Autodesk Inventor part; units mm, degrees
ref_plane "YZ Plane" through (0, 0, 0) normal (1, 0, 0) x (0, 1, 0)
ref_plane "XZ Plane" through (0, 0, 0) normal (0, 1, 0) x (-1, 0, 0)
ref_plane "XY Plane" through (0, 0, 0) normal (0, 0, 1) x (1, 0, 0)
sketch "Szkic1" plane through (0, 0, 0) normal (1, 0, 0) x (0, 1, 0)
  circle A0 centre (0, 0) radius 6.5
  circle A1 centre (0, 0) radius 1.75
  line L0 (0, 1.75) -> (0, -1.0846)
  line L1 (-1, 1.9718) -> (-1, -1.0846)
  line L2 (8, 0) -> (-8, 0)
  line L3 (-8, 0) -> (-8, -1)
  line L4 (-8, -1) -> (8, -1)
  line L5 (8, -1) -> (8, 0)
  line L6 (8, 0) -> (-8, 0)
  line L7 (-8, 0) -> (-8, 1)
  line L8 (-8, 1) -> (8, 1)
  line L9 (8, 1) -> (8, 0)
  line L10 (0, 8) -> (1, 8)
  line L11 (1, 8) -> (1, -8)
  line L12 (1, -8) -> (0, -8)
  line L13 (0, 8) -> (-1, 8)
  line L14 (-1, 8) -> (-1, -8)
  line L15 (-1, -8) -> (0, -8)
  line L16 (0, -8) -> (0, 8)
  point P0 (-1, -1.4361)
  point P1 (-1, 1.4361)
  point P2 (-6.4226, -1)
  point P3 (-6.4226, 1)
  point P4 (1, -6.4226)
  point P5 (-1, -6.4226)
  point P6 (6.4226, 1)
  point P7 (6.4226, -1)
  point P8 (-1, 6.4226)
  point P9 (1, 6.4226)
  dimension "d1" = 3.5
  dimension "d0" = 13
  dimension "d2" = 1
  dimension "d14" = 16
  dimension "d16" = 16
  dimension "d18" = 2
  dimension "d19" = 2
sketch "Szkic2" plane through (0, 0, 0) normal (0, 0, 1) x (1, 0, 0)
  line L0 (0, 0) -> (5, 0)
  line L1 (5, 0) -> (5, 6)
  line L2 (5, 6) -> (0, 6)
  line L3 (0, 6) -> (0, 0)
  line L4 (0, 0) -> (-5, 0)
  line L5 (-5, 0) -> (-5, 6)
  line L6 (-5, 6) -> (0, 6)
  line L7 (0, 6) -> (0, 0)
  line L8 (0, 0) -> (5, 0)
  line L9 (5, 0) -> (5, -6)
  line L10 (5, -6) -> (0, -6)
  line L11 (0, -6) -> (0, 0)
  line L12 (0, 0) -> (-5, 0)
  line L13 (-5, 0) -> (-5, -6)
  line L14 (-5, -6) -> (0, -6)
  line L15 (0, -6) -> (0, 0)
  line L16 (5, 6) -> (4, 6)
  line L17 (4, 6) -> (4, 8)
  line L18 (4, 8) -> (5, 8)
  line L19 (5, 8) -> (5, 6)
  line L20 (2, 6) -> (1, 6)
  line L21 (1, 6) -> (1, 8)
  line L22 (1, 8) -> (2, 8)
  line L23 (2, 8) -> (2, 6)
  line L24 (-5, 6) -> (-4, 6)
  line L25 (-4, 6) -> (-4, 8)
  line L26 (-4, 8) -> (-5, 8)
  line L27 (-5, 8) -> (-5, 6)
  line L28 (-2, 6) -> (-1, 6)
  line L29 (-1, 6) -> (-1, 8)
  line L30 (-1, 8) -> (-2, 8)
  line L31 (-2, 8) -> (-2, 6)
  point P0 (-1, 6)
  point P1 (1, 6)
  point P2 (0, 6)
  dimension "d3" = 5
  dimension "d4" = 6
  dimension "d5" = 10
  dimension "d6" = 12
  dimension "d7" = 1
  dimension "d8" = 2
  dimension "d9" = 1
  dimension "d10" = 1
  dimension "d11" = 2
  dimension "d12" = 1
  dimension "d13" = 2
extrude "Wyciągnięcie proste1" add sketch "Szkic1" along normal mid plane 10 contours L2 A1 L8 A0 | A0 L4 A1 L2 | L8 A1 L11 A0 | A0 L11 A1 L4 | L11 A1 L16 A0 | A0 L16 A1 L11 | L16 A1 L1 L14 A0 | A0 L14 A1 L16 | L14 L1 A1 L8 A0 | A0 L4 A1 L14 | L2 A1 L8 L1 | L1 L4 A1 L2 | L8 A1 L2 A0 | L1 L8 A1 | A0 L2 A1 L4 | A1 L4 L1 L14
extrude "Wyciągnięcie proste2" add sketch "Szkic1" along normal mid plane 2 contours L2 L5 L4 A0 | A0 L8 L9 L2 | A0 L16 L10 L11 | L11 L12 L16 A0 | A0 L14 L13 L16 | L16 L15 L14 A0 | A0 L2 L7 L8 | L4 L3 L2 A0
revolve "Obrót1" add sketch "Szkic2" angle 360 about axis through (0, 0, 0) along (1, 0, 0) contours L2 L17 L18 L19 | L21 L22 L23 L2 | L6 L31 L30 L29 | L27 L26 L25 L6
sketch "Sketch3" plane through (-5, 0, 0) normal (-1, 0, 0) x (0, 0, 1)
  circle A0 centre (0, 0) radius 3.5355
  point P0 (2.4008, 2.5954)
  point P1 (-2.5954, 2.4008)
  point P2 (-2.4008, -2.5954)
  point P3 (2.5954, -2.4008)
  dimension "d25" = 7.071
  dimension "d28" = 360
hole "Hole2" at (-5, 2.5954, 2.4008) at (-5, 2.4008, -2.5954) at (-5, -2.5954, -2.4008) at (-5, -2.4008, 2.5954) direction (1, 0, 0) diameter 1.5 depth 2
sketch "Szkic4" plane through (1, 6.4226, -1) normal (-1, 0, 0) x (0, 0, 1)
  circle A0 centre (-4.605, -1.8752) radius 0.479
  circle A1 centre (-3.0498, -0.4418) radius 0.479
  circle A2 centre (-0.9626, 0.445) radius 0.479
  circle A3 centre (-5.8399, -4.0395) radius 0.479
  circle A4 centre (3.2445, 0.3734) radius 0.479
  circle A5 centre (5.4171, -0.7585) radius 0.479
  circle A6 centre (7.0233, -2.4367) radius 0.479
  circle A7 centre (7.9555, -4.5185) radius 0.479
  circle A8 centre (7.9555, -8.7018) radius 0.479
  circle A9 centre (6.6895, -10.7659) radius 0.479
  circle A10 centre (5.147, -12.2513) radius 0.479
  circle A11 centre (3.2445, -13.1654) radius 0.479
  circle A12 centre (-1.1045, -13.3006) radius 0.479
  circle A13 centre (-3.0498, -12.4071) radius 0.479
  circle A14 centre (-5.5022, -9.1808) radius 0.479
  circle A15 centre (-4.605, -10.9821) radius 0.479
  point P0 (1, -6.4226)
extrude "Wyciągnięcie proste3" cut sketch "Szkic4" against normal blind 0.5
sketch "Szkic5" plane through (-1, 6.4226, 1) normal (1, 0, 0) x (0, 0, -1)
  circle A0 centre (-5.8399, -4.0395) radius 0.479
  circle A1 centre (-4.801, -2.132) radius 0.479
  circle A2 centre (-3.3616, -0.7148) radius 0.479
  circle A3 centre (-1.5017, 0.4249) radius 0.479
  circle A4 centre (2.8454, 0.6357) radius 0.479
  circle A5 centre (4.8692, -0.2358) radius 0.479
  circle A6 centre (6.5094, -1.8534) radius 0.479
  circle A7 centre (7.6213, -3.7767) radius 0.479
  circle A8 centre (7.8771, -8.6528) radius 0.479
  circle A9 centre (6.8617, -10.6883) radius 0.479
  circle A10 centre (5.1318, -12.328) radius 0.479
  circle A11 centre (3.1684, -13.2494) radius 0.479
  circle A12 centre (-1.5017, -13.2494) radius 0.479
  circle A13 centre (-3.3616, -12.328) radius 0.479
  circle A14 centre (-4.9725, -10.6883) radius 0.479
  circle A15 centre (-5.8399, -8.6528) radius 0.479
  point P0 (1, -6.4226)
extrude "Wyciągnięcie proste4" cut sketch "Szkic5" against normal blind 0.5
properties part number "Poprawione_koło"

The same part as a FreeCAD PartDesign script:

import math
import FreeCAD as App
import Part
import Sketcher
Q = App.Units.Quantity


def add_polygon(sketch, points):
    """Adds a closed chain of lines whose ends are joined by coincident constraints."""
    first, n = sketch.GeometryCount, len(points)
    for a, b in zip(points, points[1:] + points[:1]):
        sketch.addGeometry(Part.LineSegment(App.Vector(*a, 0), App.Vector(*b, 0)), False)
    for i in range(n):
        sketch.addConstraint(Sketcher.Constraint("Coincident", first + i, 2, first + (i + 1) % n, 1))

doc = App.newDocument("Part")
params = doc.addObject("Spreadsheet::Sheet", "Params")
for row, (alias, value) in enumerate([
    ("sketch1_diameter", "13 mm"),
    ("sketch1_radius", "1.75 mm"),
    ("pad1_length", "10 mm"),
    ("sketch2_radius", "6.5 mm"),
    ("sketch2_width", "2 mm"),
    ("pad2_length", "2 mm"),
    ("sketch3_width", "1 mm"),
    ("sketch3_height", "2 mm"),
    ("revolution_angle", "360 deg"),
    ("sketch4_diameter", "1.5 mm"),
    ("hole_diameter", "1.5 mm"),
    ("hole_depth", "2 mm"),
    ("pocket1_length", "0.5 mm"),
    ("pocket2_length", "0.5 mm"),
], start=1):
    params.set(f"A{row}", alias)
    params.set(f"B{row}", "=" + value)
    params.setAlias(f"B{row}", alias)

body = doc.addObject("PartDesign::Body", "Body")

sketch1 = body.newObject("Sketcher::SketchObject", "Sketch")
sketch1.AttachmentSupport = (doc.getObject("YZ_Plane"), [""])
sketch1.MapMode = "FlatFace"
sketch1.addGeometry([
    Part.Circle(App.Vector(0, 0, 0), App.Vector(0, 0, 1), 6.5),
    Part.LineSegment(App.Vector(-1, -1.4, 0), App.Vector(-1, 1.4, 0)),
    Part.ArcOfCircle(Part.Circle(App.Vector(0, 0, 0), App.Vector(0, 0, 1), 1.8), math.radians(-125), math.radians(125)),
], False)
sketch1.addConstraint([
    Sketcher.Constraint("Coincident", 1, 1, 2, 1),
    Sketcher.Constraint("Coincident", 2, 2, 1, 2),
    Sketcher.Constraint("Vertical", 1),
    Sketcher.Constraint("Coincident", 0, 3, -1, 1),
    Sketcher.Constraint("Coincident", 2, 3, -1, 1),
    Sketcher.Constraint("Diameter", 0, Q("13 mm")),
    Sketcher.Constraint("Radius", 2, Q("1.75 mm")),
    Sketcher.Constraint("DistanceX", 1, 1, -1, 1, Q("1 mm")),
])
sketch1.setExpression("Constraints[5]", "Params.sketch1_diameter")
sketch1.setExpression("Constraints[6]", "Params.sketch1_radius")
pad1 = body.newObject("PartDesign::Pad", "Pad")
pad1.Profile = sketch1
pad1.setExpression("Length", "Params.pad1_length")
pad1.Midplane = True

sketch2 = body.newObject("Sketcher::SketchObject", "Sketch001")
sketch2.AttachmentSupport = (doc.getObject("YZ_Plane"), [""])
sketch2.MapMode = "FlatFace"
sketch2.addGeometry([
    Part.LineSegment(App.Vector(8, -1, 0), App.Vector(8, 1, 0)),
    Part.LineSegment(App.Vector(8, 1, 0), App.Vector(6.4, 1, 0)),
    Part.ArcOfCircle(Part.Circle(App.Vector(0, 0, 0), App.Vector(0, 0, 1), 6.5), math.radians(-8.85), math.radians(8.85)),
    Part.LineSegment(App.Vector(6.4, -1, 0), App.Vector(8, -1, 0)),
    Part.LineSegment(App.Vector(1, 6.4, 0), App.Vector(1, 8, 0)),
    Part.LineSegment(App.Vector(1, 8, 0), App.Vector(-1, 8, 0)),
    Part.LineSegment(App.Vector(-1, 8, 0), App.Vector(-1, 6.4, 0)),
    Part.ArcOfCircle(Part.Circle(App.Vector(0, 0, 0), App.Vector(0, 0, 1), 6.5), math.radians(81.15), math.radians(98.85)),
    Part.LineSegment(App.Vector(1, -8, 0), App.Vector(1, -6.4, 0)),
    Part.ArcOfCircle(Part.Circle(App.Vector(0, 0, 0), App.Vector(0, 0, 1), 6.5), math.radians(-98.85), math.radians(-81.15)),
    Part.LineSegment(App.Vector(-1, -6.4, 0), App.Vector(-1, -8, 0)),
    Part.LineSegment(App.Vector(-1, -8, 0), App.Vector(1, -8, 0)),
    Part.LineSegment(App.Vector(-6.4, 1, 0), App.Vector(-8, 1, 0)),
    Part.LineSegment(App.Vector(-8, 1, 0), App.Vector(-8, -1, 0)),
    Part.LineSegment(App.Vector(-8, -1, 0), App.Vector(-6.4, -1, 0)),
    Part.ArcOfCircle(Part.Circle(App.Vector(0, 0, 0), App.Vector(0, 0, 1), 6.5), math.radians(171.15), math.radians(188.85)),
], False)
sketch2.addConstraint([
    Sketcher.Constraint("Coincident", 0, 2, 1, 1),
    Sketcher.Constraint("Coincident", 1, 2, 2, 2),
    Sketcher.Constraint("Coincident", 2, 1, 3, 1),
    Sketcher.Constraint("Coincident", 3, 2, 0, 1),
    Sketcher.Constraint("Coincident", 4, 2, 5, 1),
    Sketcher.Constraint("Coincident", 5, 2, 6, 1),
    Sketcher.Constraint("Coincident", 6, 2, 7, 2),
    Sketcher.Constraint("Coincident", 7, 1, 4, 1),
    Sketcher.Constraint("Coincident", 8, 2, 9, 2),
    Sketcher.Constraint("Coincident", 9, 1, 10, 1),
    Sketcher.Constraint("Coincident", 10, 2, 11, 1),
    Sketcher.Constraint("Coincident", 11, 2, 8, 1),
    Sketcher.Constraint("Coincident", 12, 2, 13, 1),
    Sketcher.Constraint("Coincident", 13, 2, 14, 1),
    Sketcher.Constraint("Coincident", 14, 2, 15, 2),
    Sketcher.Constraint("Coincident", 15, 1, 12, 1),
    Sketcher.Constraint("Vertical", 0),
    Sketcher.Constraint("Horizontal", 1),
    Sketcher.Constraint("Horizontal", 3),
    Sketcher.Constraint("Vertical", 4),
    Sketcher.Constraint("Horizontal", 5),
    Sketcher.Constraint("Vertical", 6),
    Sketcher.Constraint("Vertical", 8),
    Sketcher.Constraint("Vertical", 10),
    Sketcher.Constraint("Horizontal", 11),
    Sketcher.Constraint("Horizontal", 12),
    Sketcher.Constraint("Vertical", 13),
    Sketcher.Constraint("Horizontal", 14),
    Sketcher.Constraint("Coincident", 2, 3, -1, 1),
    Sketcher.Constraint("Coincident", 7, 3, -1, 1),
    Sketcher.Constraint("Coincident", 9, 3, -1, 1),
    Sketcher.Constraint("Coincident", 15, 3, -1, 1),
    Sketcher.Constraint("Equal", 2, 7),
    Sketcher.Constraint("Equal", 7, 9),
    Sketcher.Constraint("Equal", 9, 15),
    Sketcher.Constraint("Symmetric", 4, 2, 10, 2, -1, 1),
    Sketcher.Constraint("Symmetric", 3, 2, 12, 2, -1, 1),
    Sketcher.Constraint("Horizontal", 6, 2, 7, 1),
    Sketcher.Constraint("Horizontal", 8, 2, 9, 1),
    Sketcher.Constraint("Horizontal", 1, 2, 12, 2),
    Sketcher.Constraint("Horizontal", 3, 2, 13, 2),
    Sketcher.Constraint("Equal", 11, 0),
    Sketcher.Constraint("Equal", 14, 4),
    Sketcher.Constraint("Radius", 2, Q("6.5 mm")),
    Sketcher.Constraint("DistanceX", 5, 2, 5, 1, Q("2 mm")),
    Sketcher.Constraint("DistanceX", -1, 1, 0, 2, Q("8 mm")),
])
sketch2.setExpression("Constraints[43]", "Params.sketch2_radius")
sketch2.setExpression("Constraints[44]", "Params.sketch2_width")
pad2 = body.newObject("PartDesign::Pad", "Pad001")
pad2.Profile = sketch2
pad2.setExpression("Length", "Params.pad2_length")
pad2.Midplane = True

sketch3 = body.newObject("Sketcher::SketchObject", "Sketch002")
sketch3.AttachmentSupport = (doc.getObject("XY_Plane"), [""])
sketch3.MapMode = "FlatFace"
add_polygon(sketch3, [(4, 6), (5, 6), (5, 8), (4, 8)])
add_polygon(sketch3, [(1, 8), (1, 6), (2, 6), (2, 8)])
add_polygon(sketch3, [(-2, 6), (-1, 6), (-1, 8), (-2, 8)])
add_polygon(sketch3, [(-5, 8), (-5, 6), (-4, 6), (-4, 8)])
sketch3.addConstraint([
    Sketcher.Constraint("Horizontal", 0),
    Sketcher.Constraint("Vertical", 1),
    Sketcher.Constraint("Horizontal", 2),
    Sketcher.Constraint("Vertical", 3),
    Sketcher.Constraint("Vertical", 4),
    Sketcher.Constraint("Horizontal", 5),
    Sketcher.Constraint("Vertical", 6),
    Sketcher.Constraint("Horizontal", 7),
    Sketcher.Constraint("Horizontal", 8),
    Sketcher.Constraint("Vertical", 9),
    Sketcher.Constraint("Horizontal", 10),
    Sketcher.Constraint("Vertical", 11),
    Sketcher.Constraint("Vertical", 12),
    Sketcher.Constraint("Horizontal", 13),
    Sketcher.Constraint("Vertical", 14),
    Sketcher.Constraint("Horizontal", 15),
    Sketcher.Constraint("Symmetric", 4, 2, 8, 2, -2),
    Sketcher.Constraint("Symmetric", 6, 2, 10, 2, -2),
    Sketcher.Constraint("Symmetric", 0, 2, 12, 2, -2),
    Sketcher.Constraint("Symmetric", 2, 2, 14, 2, -2),
    Sketcher.Constraint("Horizontal", 3, 2, 4, 2),
    Sketcher.Constraint("Horizontal", 2, 2, 6, 2),
    Sketcher.Constraint("Equal", 2, 5),
    Sketcher.Constraint("DistanceX", 0, 1, 0, 2, Q("1 mm")),
    Sketcher.Constraint("DistanceY", 1, 1, 1, 2, Q("2 mm")),
    Sketcher.Constraint("DistanceX", -1, 1, 0, 2, Q("5 mm")),
    Sketcher.Constraint("DistanceY", -1, 1, 0, 2, Q("6 mm")),
    Sketcher.Constraint("DistanceX", -1, 1, 4, 2, Q("1 mm")),
])
sketch3.setExpression("Constraints[39]", "Params.sketch3_width")
sketch3.setExpression("Constraints[40]", "Params.sketch3_height")
revolution = body.newObject("PartDesign::Revolution", "Revolution")
revolution.Profile = sketch3
revolution.ReferenceAxis = (sketch3, ["H_Axis"])
revolution.setExpression("Angle", "Params.revolution_angle")

sketch4 = body.newObject("Sketcher::SketchObject", "Sketch003")
sketch4.AttachmentSupport = (doc.getObject("YZ_Plane"), [""])
sketch4.MapMode = "FlatFace"
sketch4.AttachmentOffset = App.Placement(App.Vector(0, 0, -5), App.Rotation())
sketch4.addGeometry([
    Part.Circle(App.Vector(2.6, 2.4, 0), App.Vector(0, 0, 1), 0.8),
    Part.Circle(App.Vector(2.4, -2.6, 0), App.Vector(0, 0, 1), 0.8),
    Part.Circle(App.Vector(-2.6, -2.4, 0), App.Vector(0, 0, 1), 0.8),
    Part.Circle(App.Vector(-2.4, 2.6, 0), App.Vector(0, 0, 1), 0.8),
], False)
sketch4.addConstraint([
    Sketcher.Constraint("Equal", 0, 1),
    Sketcher.Constraint("Equal", 1, 2),
    Sketcher.Constraint("Equal", 2, 3),
    Sketcher.Constraint("Symmetric", 0, 3, 2, 3, -1, 1),
    Sketcher.Constraint("Symmetric", 1, 3, 3, 3, -1, 1),
    Sketcher.Constraint("Diameter", 0, Q("1.5 mm")),
    Sketcher.Constraint("DistanceX", -1, 1, 0, 3, Q("2.5954 mm")),
    Sketcher.Constraint("DistanceY", -1, 1, 0, 3, Q("2.4008 mm")),
    Sketcher.Constraint("DistanceX", -1, 1, 1, 3, Q("2.4008 mm")),
    Sketcher.Constraint("DistanceY", 1, 3, -1, 1, Q("2.5954 mm")),
])
sketch4.setExpression("Constraints[5]", "Params.sketch4_diameter")
doc.recompute()
hole = body.newObject("PartDesign::Hole", "Hole")
hole.Profile = sketch4
hole.ThreadType = "None"
hole.setExpression("Diameter", "Params.hole_diameter")
hole.DepthType = "Dimension"
hole.setExpression("Depth", "Params.hole_depth")
hole.DrillPoint = "Flat"
hole.Reversed = True

sketch5 = body.newObject("Sketcher::SketchObject", "Sketch004")
sketch5.AttachmentSupport = (doc.getObject("YZ_Plane"), [""])
sketch5.MapMode = "FlatFace"
sketch5.AttachmentOffset = App.Placement(App.Vector(0, 0, 1), App.Rotation())
sketch5.addGeometry([
    Part.Circle(App.Vector(4.55, -5.61, 0), App.Vector(0, 0, 1), 0.48),
    Part.Circle(App.Vector(5.98, -4.05, 0), App.Vector(0, 0, 1), 0.48),
    Part.Circle(App.Vector(6.87, -1.96, 0), App.Vector(0, 0, 1), 0.48),
    Part.Circle(App.Vector(2.38, -6.84, 0), App.Vector(0, 0, 1), 0.48),
    Part.Circle(App.Vector(6.8, 2.24, 0), App.Vector(0, 0, 1), 0.48),
    Part.Circle(App.Vector(5.66, 4.42, 0), App.Vector(0, 0, 1), 0.48),
    Part.Circle(App.Vector(3.99, 6.02, 0), App.Vector(0, 0, 1), 0.48),
    Part.Circle(App.Vector(1.9, 6.96, 0), App.Vector(0, 0, 1), 0.48),
    Part.Circle(App.Vector(-2.28, 6.96, 0), App.Vector(0, 0, 1), 0.48),
    Part.Circle(App.Vector(-4.34, 5.69, 0), App.Vector(0, 0, 1), 0.48),
    Part.Circle(App.Vector(-5.83, 4.15, 0), App.Vector(0, 0, 1), 0.48),
    Part.Circle(App.Vector(-6.74, 2.24, 0), App.Vector(0, 0, 1), 0.48),
    Part.Circle(App.Vector(-6.88, -2.1, 0), App.Vector(0, 0, 1), 0.48),
    Part.Circle(App.Vector(-5.98, -4.05, 0), App.Vector(0, 0, 1), 0.48),
    Part.Circle(App.Vector(-2.76, -6.5, 0), App.Vector(0, 0, 1), 0.48),
    Part.Circle(App.Vector(-4.56, -5.61, 0), App.Vector(0, 0, 1), 0.48),
], False)
sketch5.addConstraint([
    Sketcher.Constraint("Equal", 0, 1),
    Sketcher.Constraint("Equal", 1, 2),
    Sketcher.Constraint("Equal", 2, 3),
    Sketcher.Constraint("Equal", 3, 4),
    Sketcher.Constraint("Equal", 4, 5),
    Sketcher.Constraint("Equal", 5, 6),
    Sketcher.Constraint("Equal", 6, 7),
    Sketcher.Constraint("Equal", 7, 8),
    Sketcher.Constraint("Equal", 8, 9),
    Sketcher.Constraint("Equal", 9, 10),
    Sketcher.Constraint("Equal", 10, 11),
    Sketcher.Constraint("Equal", 11, 12),
    Sketcher.Constraint("Equal", 12, 13),
    Sketcher.Constraint("Equal", 13, 14),
    Sketcher.Constraint("Equal", 14, 15),
    Sketcher.Constraint("Horizontal", 7, 3, 8, 3),
    Sketcher.Constraint("Horizontal", 4, 3, 11, 3),
    Sketcher.Constraint("Horizontal", 1, 3, 13, 3),
    Sketcher.Constraint("Horizontal", 0, 3, 15, 3),
    Sketcher.Constraint("Diameter", 0, Q("0.958 mm")),
    Sketcher.Constraint("DistanceY", 3, 3, -1, 1, Q("6.84 mm")),
    Sketcher.Constraint("DistanceY", 3, 3, 1, 3, Q("2.79 mm")),
    Sketcher.Constraint("DistanceX", 6, 3, 4, 3, Q("2.81 mm")),
    Sketcher.Constraint("DistanceX", 7, 3, 5, 3, Q("3.76 mm")),
    Sketcher.Constraint("DistanceY", 10, 3, 5, 3, Q("0.27 mm")),
    Sketcher.Constraint("DistanceY", 12, 3, 8, 3, Q("9.06 mm")),
    Sketcher.Constraint("DistanceY", 0, 3, -1, 1, Q("5.605 mm")),
    Sketcher.Constraint("DistanceX", -1, 1, 3, 3, Q("2.383 mm")),
    Sketcher.Constraint("DistanceX", -1, 1, 4, 3, Q("6.796 mm")),
    Sketcher.Constraint("DistanceX", -1, 1, 5, 3, Q("5.664 mm")),
    Sketcher.Constraint("DistanceY", -1, 1, 5, 3, Q("4.417 mm")),
    Sketcher.Constraint("DistanceX", 12, 3, -1, 1, Q("6.878 mm")),
    Sketcher.Constraint("DistanceY", 2, 3, 4, 3, Q("4.207 mm")),
    Sketcher.Constraint("DistanceY", 2, 3, 6, 3, Q("7.986 mm")),
    Sketcher.Constraint("DistanceX", 6, 3, 1, 3, Q("1.995 mm")),
    Sketcher.Constraint("DistanceY", 1, 3, 6, 3, Q("10.073 mm")),
    Sketcher.Constraint("DistanceY", 4, 3, 7, 3, Q("4.711 mm")),
    Sketcher.Constraint("DistanceX", 8, 3, 6, 3, Q("6.265 mm")),
    Sketcher.Constraint("DistanceX", 9, 3, 8, 3, Q("2.064 mm")),
    Sketcher.Constraint("DistanceY", 9, 3, 8, 3, Q("1.266 mm")),
    Sketcher.Constraint("DistanceX", 11, 3, 10, 3, Q("0.914 mm")),
    Sketcher.Constraint("DistanceX", 11, 3, 7, 3, Q("8.647 mm")),
    Sketcher.Constraint("DistanceX", 14, 3, 1, 3, Q("8.739 mm")),
    Sketcher.Constraint("DistanceX", 13, 3, 15, 3, Q("1.425 mm")),
    Sketcher.Constraint("DistanceX", -1, 1, 0, 3, Q("4.5474 mm")),
    Sketcher.Constraint("DistanceX", -1, 1, 2, 3, Q("6.8676 mm")),
    Sketcher.Constraint("DistanceX", 13, 3, -1, 1, Q("5.9845 mm")),
    Sketcher.Constraint("DistanceY", 14, 3, -1, 1, Q("6.5022 mm")),
])
pocket1 = body.newObject("PartDesign::Pocket", "Pocket")
pocket1.Profile = sketch5
pocket1.setExpression("Length", "Params.pocket1_length")
pocket1.Reversed = True

sketch6 = body.newObject("Sketcher::SketchObject", "Sketch005")
sketch6.AttachmentSupport = (doc.getObject("YZ_Plane"), [""])
sketch6.MapMode = "FlatFace"
sketch6.AttachmentOffset = App.Placement(App.Vector(0, 0, -1), App.Rotation())
sketch6.addGeometry([
    Part.Circle(App.Vector(2.38, 6.84, 0), App.Vector(0, 0, 1), 0.48),
    Part.Circle(App.Vector(4.29, 5.8, 0), App.Vector(0, 0, 1), 0.48),
    Part.Circle(App.Vector(5.71, 4.36, 0), App.Vector(0, 0, 1), 0.48),
    Part.Circle(App.Vector(6.85, 2.5, 0), App.Vector(0, 0, 1), 0.48),
    Part.Circle(App.Vector(7.06, -1.85, 0), App.Vector(0, 0, 1), 0.48),
    Part.Circle(App.Vector(6.19, -3.87, 0), App.Vector(0, 0, 1), 0.48),
    Part.Circle(App.Vector(4.57, -5.51, 0), App.Vector(0, 0, 1), 0.48),
    Part.Circle(App.Vector(2.65, -6.62, 0), App.Vector(0, 0, 1), 0.48),
    Part.Circle(App.Vector(-2.23, -6.88, 0), App.Vector(0, 0, 1), 0.48),
    Part.Circle(App.Vector(-4.27, -5.86, 0), App.Vector(0, 0, 1), 0.48),
    Part.Circle(App.Vector(-5.91, -4.13, 0), App.Vector(0, 0, 1), 0.48),
    Part.Circle(App.Vector(-6.83, -2.17, 0), App.Vector(0, 0, 1), 0.48),
    Part.Circle(App.Vector(-6.83, 2.5, 0), App.Vector(0, 0, 1), 0.48),
    Part.Circle(App.Vector(-5.91, 4.36, 0), App.Vector(0, 0, 1), 0.48),
    Part.Circle(App.Vector(-4.27, 5.97, 0), App.Vector(0, 0, 1), 0.48),
    Part.Circle(App.Vector(-2.23, 6.84, 0), App.Vector(0, 0, 1), 0.48),
], False)
sketch6.addConstraint([
    Sketcher.Constraint("Equal", 0, 1),
    Sketcher.Constraint("Equal", 1, 2),
    Sketcher.Constraint("Equal", 2, 3),
    Sketcher.Constraint("Equal", 3, 4),
    Sketcher.Constraint("Equal", 4, 5),
    Sketcher.Constraint("Equal", 5, 6),
    Sketcher.Constraint("Equal", 6, 7),
    Sketcher.Constraint("Equal", 7, 8),
    Sketcher.Constraint("Equal", 8, 9),
    Sketcher.Constraint("Equal", 9, 10),
    Sketcher.Constraint("Equal", 10, 11),
    Sketcher.Constraint("Equal", 11, 12),
    Sketcher.Constraint("Equal", 12, 13),
    Sketcher.Constraint("Equal", 13, 14),
    Sketcher.Constraint("Equal", 14, 15),
    Sketcher.Constraint("Horizontal", 3, 3, 12, 3),
    Sketcher.Constraint("Horizontal", 2, 3, 13, 3),
    Sketcher.Constraint("Horizontal", 0, 3, 15, 3),
    Sketcher.Constraint("Vertical", 11, 3, 12, 3),
    Sketcher.Constraint("Vertical", 10, 3, 13, 3),
    Sketcher.Constraint("Vertical", 9, 3, 14, 3),
    Sketcher.Constraint("Vertical", 8, 3, 15, 3),
    Sketcher.Constraint("Diameter", 0, Q("0.958 mm")),
    Sketcher.Constraint("DistanceY", -1, 1, 0, 3, Q("6.84 mm")),
    Sketcher.Constraint("DistanceY", 3, 3, 2, 3, Q("1.86 mm")),
    Sketcher.Constraint("DistanceY", 9, 3, 10, 3, Q("1.73 mm")),
    Sketcher.Constraint("DistanceY", 11, 3, 12, 3, Q("4.67 mm")),
    Sketcher.Constraint("DistanceX", 12, 3, 0, 3, Q("9.21 mm")),
    Sketcher.Constraint("DistanceX", -1, 1, 0, 3, Q("2.383 mm")),
    Sketcher.Constraint("DistanceY", -1, 1, 1, 3, Q("5.801 mm")),
    Sketcher.Constraint("DistanceX", -1, 1, 7, 3, Q("2.646 mm")),
    Sketcher.Constraint("DistanceY", 8, 3, -1, 1, Q("6.877 mm")),
    Sketcher.Constraint("DistanceX", 1, 3, 3, 3, Q("2.557 mm")),
    Sketcher.Constraint("DistanceY", 4, 3, 3, 3, Q("4.347 mm")),
    Sketcher.Constraint("DistanceY", 5, 3, 3, 3, Q("6.371 mm")),
    Sketcher.Constraint("DistanceX", 2, 3, 5, 3, Q("0.479 mm")),
    Sketcher.Constraint("DistanceY", 5, 3, 0, 3, Q("10.709 mm")),
    Sketcher.Constraint("DistanceX", 6, 3, 4, 3, Q("2.489 mm")),
    Sketcher.Constraint("DistanceY", 6, 3, 4, 3, Q("3.664 mm")),
    Sketcher.Constraint("DistanceY", 7, 3, 6, 3, Q("1.112 mm")),
    Sketcher.Constraint("DistanceX", 7, 3, 5, 3, Q("3.541 mm")),
    Sketcher.Constraint("DistanceX", 8, 3, 7, 3, Q("4.876 mm")),
    Sketcher.Constraint("DistanceX", 9, 3, 6, 3, Q("8.835 mm")),
    Sketcher.Constraint("DistanceX", 11, 3, 9, 3, Q("2.561 mm")),
    Sketcher.Constraint("DistanceX", 13, 3, 1, 3, Q("10.196 mm")),
    Sketcher.Constraint("DistanceY", 13, 3, 14, 3, Q("1.611 mm")),
    Sketcher.Constraint("DistanceX", -1, 1, 1, 3, Q("4.2906 mm")),
    Sketcher.Constraint("DistanceY", 9, 3, -1, 1, Q("5.8617 mm")),
])
pocket2 = body.newObject("PartDesign::Pocket", "Pocket001")
pocket2.Profile = sketch6
pocket2.setExpression("Length", "Params.pocket2_length")

doc.recompute()
